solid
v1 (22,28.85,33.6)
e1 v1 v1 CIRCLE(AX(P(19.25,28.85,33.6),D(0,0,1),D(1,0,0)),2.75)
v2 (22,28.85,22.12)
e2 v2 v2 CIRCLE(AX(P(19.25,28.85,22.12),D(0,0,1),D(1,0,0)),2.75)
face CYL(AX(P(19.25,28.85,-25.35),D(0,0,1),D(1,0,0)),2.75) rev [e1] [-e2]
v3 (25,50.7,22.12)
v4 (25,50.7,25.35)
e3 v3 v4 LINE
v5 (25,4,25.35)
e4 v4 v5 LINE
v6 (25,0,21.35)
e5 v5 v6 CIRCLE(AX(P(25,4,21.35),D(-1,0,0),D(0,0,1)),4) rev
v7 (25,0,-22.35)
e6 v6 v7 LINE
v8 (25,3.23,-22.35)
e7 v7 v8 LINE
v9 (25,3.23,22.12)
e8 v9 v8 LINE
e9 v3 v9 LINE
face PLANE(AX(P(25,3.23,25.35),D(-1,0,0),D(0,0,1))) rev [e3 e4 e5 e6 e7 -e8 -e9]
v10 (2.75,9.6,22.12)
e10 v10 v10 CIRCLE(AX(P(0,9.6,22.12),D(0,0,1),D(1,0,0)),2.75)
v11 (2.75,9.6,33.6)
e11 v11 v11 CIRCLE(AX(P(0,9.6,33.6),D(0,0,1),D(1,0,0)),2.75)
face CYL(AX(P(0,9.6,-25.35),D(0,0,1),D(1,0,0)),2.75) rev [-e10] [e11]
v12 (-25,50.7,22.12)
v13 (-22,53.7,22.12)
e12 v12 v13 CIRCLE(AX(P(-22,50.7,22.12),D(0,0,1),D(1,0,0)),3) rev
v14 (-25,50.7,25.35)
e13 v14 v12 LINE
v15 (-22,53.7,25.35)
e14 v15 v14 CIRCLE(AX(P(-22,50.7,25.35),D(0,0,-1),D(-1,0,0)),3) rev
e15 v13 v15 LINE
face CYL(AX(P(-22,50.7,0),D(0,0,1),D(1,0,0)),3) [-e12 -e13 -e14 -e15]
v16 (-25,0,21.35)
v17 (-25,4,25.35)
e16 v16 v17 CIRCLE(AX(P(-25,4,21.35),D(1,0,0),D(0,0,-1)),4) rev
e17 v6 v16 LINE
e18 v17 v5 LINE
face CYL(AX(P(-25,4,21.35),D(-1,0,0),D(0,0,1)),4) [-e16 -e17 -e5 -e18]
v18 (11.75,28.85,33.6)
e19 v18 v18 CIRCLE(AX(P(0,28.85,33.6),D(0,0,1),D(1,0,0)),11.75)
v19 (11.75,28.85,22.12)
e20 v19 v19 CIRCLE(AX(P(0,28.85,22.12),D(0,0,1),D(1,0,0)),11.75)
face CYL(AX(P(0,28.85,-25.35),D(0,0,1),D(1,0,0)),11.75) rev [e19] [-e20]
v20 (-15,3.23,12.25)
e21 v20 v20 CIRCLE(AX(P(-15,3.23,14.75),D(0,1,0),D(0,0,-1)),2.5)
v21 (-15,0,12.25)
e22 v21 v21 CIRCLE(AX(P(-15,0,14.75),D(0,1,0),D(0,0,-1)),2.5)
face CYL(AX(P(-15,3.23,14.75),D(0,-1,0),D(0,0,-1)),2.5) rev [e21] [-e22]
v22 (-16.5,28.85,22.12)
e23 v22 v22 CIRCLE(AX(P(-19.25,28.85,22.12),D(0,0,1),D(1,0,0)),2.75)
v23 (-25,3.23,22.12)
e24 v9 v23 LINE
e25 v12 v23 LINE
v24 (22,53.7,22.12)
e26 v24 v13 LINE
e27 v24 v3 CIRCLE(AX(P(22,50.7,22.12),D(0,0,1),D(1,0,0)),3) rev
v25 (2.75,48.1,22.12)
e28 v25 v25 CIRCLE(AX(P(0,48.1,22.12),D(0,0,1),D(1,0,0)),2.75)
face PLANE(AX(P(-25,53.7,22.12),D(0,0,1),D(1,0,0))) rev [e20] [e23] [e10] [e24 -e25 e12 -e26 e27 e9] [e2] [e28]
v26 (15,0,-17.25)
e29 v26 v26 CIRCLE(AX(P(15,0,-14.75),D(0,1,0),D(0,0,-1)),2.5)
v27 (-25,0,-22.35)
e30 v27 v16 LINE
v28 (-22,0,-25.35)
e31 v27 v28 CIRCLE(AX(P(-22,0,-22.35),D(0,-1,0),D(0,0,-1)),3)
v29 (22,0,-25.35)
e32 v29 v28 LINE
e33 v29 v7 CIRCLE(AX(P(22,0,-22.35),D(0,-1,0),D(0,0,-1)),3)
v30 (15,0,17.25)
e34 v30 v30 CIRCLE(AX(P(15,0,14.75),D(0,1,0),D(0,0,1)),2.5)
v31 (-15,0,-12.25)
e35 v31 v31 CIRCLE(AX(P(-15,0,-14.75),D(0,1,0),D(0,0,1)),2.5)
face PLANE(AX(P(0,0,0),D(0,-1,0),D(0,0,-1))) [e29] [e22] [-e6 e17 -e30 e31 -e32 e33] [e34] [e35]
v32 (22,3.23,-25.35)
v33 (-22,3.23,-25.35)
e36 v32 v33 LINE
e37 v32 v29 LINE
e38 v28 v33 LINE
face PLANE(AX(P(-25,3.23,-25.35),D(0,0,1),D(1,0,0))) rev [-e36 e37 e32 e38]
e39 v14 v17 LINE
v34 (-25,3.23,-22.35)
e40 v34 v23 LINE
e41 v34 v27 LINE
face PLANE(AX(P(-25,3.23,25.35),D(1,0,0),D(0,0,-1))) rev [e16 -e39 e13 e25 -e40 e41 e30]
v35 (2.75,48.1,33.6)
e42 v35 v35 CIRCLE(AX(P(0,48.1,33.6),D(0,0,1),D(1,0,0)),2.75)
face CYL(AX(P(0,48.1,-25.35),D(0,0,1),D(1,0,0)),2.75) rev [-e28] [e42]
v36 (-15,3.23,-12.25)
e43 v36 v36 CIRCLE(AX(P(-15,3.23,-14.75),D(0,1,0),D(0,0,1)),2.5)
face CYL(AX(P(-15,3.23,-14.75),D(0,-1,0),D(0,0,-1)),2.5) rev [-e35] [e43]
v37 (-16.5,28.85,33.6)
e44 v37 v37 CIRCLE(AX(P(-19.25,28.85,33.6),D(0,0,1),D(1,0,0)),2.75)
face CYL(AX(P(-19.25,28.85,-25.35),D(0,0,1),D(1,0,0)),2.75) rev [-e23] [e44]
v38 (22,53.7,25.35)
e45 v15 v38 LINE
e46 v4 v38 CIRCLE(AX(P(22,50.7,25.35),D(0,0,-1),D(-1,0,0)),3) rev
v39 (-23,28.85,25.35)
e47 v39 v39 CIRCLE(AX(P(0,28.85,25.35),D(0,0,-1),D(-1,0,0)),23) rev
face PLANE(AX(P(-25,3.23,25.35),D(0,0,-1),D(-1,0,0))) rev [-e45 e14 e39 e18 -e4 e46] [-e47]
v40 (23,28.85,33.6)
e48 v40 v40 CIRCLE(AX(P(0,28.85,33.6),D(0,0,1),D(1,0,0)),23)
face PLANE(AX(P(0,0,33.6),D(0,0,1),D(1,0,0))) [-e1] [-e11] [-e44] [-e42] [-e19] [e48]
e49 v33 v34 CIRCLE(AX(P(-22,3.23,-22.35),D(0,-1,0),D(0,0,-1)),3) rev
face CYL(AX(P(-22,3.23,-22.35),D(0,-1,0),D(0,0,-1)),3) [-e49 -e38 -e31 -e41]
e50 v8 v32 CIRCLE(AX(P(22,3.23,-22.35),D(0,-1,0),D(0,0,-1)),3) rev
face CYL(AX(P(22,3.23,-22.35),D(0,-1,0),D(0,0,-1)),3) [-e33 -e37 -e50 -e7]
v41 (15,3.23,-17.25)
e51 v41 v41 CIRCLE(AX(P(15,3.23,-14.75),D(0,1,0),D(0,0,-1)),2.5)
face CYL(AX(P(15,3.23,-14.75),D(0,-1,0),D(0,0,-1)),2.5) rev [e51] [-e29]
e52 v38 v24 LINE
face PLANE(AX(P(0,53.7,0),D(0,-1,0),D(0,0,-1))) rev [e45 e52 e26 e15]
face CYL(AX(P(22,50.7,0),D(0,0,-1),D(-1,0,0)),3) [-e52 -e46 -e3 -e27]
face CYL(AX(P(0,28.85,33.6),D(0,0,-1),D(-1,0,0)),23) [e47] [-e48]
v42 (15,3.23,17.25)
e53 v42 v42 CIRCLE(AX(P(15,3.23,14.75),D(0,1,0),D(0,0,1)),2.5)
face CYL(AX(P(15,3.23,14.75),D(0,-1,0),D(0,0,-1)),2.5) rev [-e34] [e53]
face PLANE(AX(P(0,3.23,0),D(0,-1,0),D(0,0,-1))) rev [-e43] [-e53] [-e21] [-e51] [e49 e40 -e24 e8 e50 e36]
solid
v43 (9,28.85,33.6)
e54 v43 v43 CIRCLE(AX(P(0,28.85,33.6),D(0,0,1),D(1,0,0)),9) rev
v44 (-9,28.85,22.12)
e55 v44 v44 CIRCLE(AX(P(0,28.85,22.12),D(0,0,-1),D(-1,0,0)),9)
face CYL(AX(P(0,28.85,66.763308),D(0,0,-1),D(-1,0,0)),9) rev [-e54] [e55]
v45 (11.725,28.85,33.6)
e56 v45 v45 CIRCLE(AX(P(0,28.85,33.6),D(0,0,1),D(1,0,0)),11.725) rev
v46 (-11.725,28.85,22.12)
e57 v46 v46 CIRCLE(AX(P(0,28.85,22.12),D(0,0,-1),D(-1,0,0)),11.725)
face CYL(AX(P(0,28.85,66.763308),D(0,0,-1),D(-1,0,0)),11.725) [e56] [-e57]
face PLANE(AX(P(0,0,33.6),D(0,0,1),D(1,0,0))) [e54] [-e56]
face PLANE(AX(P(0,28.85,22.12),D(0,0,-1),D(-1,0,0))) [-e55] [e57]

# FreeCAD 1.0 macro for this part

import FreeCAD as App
import Part
import Sketcher

V = App.Vector


def edges_at(feature, points):
    """Names of the edges that pass closest to the given points."""
    edges = feature.Shape.Edges
    near = lambda p: min(range(len(edges)), key=lambda i: edges[i].distToShape(Part.Vertex(*p))[0])
    return sorted({f"Edge{near(p) + 1}" for p in points})


def add_polygon(sketch, points):
    """Adds a closed chain of lines whose ends are joined by coincident constraints."""
    first, n = sketch.GeometryCount, len(points)
    for a, b in zip(points, points[1:] + points[:1]):
        sketch.addGeometry(Part.LineSegment(App.Vector(*a, 0), App.Vector(*b, 0)), False)
    for i in range(n):
        sketch.addConstraint(Sketcher.Constraint("Coincident", first + i, 2, first + (i + 1) % n, 1))

doc = App.newDocument("Part")
body = doc.addObject("PartDesign::Body", "Body")

sketch1 = body.newObject("Sketcher::SketchObject", "Sketch")
sketch1.AttachmentSupport = (doc.getObject("XZ_Plane"), [""])
sketch1.MapMode = "FlatFace"
add_polygon(sketch1, [(-25, -25.4), (-25, 25.4), (25, 25.4), (25, -25.4)])
sketch1.addGeometry(Part.Circle(V(-15, 14.8, 0), V(0, 0, 1), 2.5), False)
sketch1.addGeometry(Part.Circle(V(15, 14.8, 0), V(0, 0, 1), 2.5), False)
sketch1.addGeometry(Part.Circle(V(-15, -14.8, 0), V(0, 0, 1), 2.5), False)
sketch1.addGeometry(Part.Circle(V(15, -14.8, 0), V(0, 0, 1), 2.5), False)
sketch1.addConstraint([
    Sketcher.Constraint("Vertical", 0),
    Sketcher.Constraint("Horizontal", 1),
    Sketcher.Constraint("Vertical", 2),
    Sketcher.Constraint("Horizontal", 3),
    Sketcher.Constraint("Equal", 4, 5),
    Sketcher.Constraint("Equal", 5, 6),
    Sketcher.Constraint("Equal", 6, 7),
    Sketcher.Constraint("Symmetric", 5, 3, 6, 3, -1, 1),
    Sketcher.Constraint("Symmetric", 4, 3, 7, 3, -1, 1),
    Sketcher.Constraint("Symmetric", 0, 2, 2, 2, -1, 1),
    Sketcher.Constraint("Symmetric", 4, 3, 5, 3, -2),
    Sketcher.Constraint("Diameter", 4, 5.0),
    Sketcher.Constraint("DistanceX", 1, 1, 1, 2, 50.0),
    Sketcher.Constraint("DistanceY", 0, 1, 0, 2, 50.7),
    Sketcher.Constraint("DistanceX", 4, 3, -1, 1, 15.0),
    Sketcher.Constraint("DistanceY", 6, 3, 4, 3, 29.5),
])
pad1 = body.newObject("PartDesign::Pad", "Pad")
pad1.Profile = sketch1
pad1.Length = 3.23
pad1.Reversed = True

sketch2 = body.newObject("Sketcher::SketchObject", "Sketch001")
sketch2.AttachmentSupport = (doc.getObject("XZ_Plane"), [""])
sketch2.MapMode = "FlatFace"
sketch2.AttachmentOffset = App.Placement(V(0, 0, -3.23), App.Rotation())
add_polygon(sketch2, [(-25, 22.1), (-25, 25.4), (25, 25.4), (25, 22.1)])
sketch2.addConstraint([
    Sketcher.Constraint("Vertical", 0),
    Sketcher.Constraint("Horizontal", 1),
    Sketcher.Constraint("Vertical", 2),
    Sketcher.Constraint("Horizontal", 3),
    Sketcher.Constraint("DistanceX", 1, 1, 1, 2, 50.0),
    Sketcher.Constraint("DistanceX", 0, 2, -1, 1, 25.0),
    Sketcher.Constraint("DistanceY", 0, 1, 0, 2, 3.23),
    Sketcher.Constraint("DistanceY", -1, 1, 0, 2, 25.35),
])
pad2 = body.newObject("PartDesign::Pad", "Pad001")
pad2.Profile = sketch2
pad2.Length = 50.47
pad2.Reversed = True
doc.recompute()

fillet = body.newObject("PartDesign::Fillet", "Fillet")
fillet.Base = (pad2, edges_at(pad2, [(0, 0, 25.35)]))
fillet.Radius = 4
doc.recompute()

fillet2 = body.newObject("PartDesign::Fillet", "Fillet001")
fillet2.Base = (fillet, edges_at(fillet, [
    (-25, 53.7, 23.735),
    (25, 53.7, 23.735),
    (-25, 1.615, -25.35),
    (25, 1.615, -25.35),
]))
fillet2.Radius = 3

sketch3 = body.newObject("Sketcher::SketchObject", "Sketch002")
sketch3.AttachmentSupport = (doc.getObject("XY_Plane"), [""])
sketch3.MapMode = "FlatFace"
sketch3.AttachmentOffset = App.Placement(V(0, 0, 25.35), App.Rotation())
sketch3.addGeometry([
    Part.Circle(V(-19.2, 28.9, 0), V(0, 0, 1), 2.8),
    Part.Circle(V(19.2, 28.9, 0), V(0, 0, 1), 2.8),
    Part.Circle(V(0, 48.1, 0), V(0, 0, 1), 2.8),
    Part.Circle(V(0, 9.6, 0), V(0, 0, 1), 2.8),
    Part.Circle(V(0, 28.9, 0), V(0, 0, 1), 11.8),
], False)
sketch3.addConstraint([
    Sketcher.Constraint("Equal", 0, 1),
    Sketcher.Constraint("Equal", 1, 2),
    Sketcher.Constraint("Equal", 2, 3),
    Sketcher.Constraint("Symmetric", 0, 3, 1, 3, -2),
    Sketcher.Constraint("PointOnObject", 2, 3, -2),
    Sketcher.Constraint("PointOnObject", 3, 3, -2),
    Sketcher.Constraint("PointOnObject", 4, 3, -2),
    Sketcher.Constraint("Horizontal", 1, 3, 4, 3),
    Sketcher.Constraint("Diameter", 0, 5.5),
    Sketcher.Constraint("Diameter", 4, 23.5),
    Sketcher.Constraint("DistanceY", -1, 1, 2, 3, 48.1),
    Sketcher.Constraint("DistanceY", -1, 1, 3, 3, 9.6),
    Sketcher.Constraint("DistanceX", 0, 3, 1, 3, 38.5),
    Sketcher.Constraint("DistanceY", -1, 1, 0, 3, 28.85),
])
pocket1 = body.newObject("PartDesign::Pocket", "Pocket")
pocket1.Profile = sketch3
pocket1.Type = "ThroughAll"
pocket1.Midplane = True

sketch4 = body.newObject("Sketcher::SketchObject", "Sketch003")
sketch4.AttachmentSupport = (doc.getObject("XY_Plane"), [""])
sketch4.MapMode = "FlatFace"
sketch4.AttachmentOffset = App.Placement(V(0, 0, 25.35), App.Rotation())
sketch4.addGeometry([
    Part.Circle(V(0, 28.9, 0), V(0, 0, 1), 23),
    Part.Circle(V(0, 9.6, 0), V(0, 0, 1), 2.8),
    Part.Circle(V(-19.2, 28.9, 0), V(0, 0, 1), 2.8),
    Part.Circle(V(0, 28.9, 0), V(0, 0, 1), 11.8),
    Part.Circle(V(19.2, 28.9, 0), V(0, 0, 1), 2.8),
    Part.Circle(V(0, 48.1, 0), V(0, 0, 1), 2.8),
], False)
sketch4.addConstraint([
    Sketcher.Constraint("Coincident", 3, 3, 0, 3),
    Sketcher.Constraint("Equal", 1, 2),
    Sketcher.Constraint("Equal", 2, 4),
    Sketcher.Constraint("Equal", 4, 5),
    Sketcher.Constraint("Symmetric", 2, 3, 4, 3, -2),
    Sketcher.Constraint("PointOnObject", 0, 3, -2),
    Sketcher.Constraint("PointOnObject", 1, 3, -2),
    Sketcher.Constraint("PointOnObject", 5, 3, -2),
    Sketcher.Constraint("Horizontal", 0, 3, 2, 3),
    Sketcher.Constraint("Diameter", 0, 46.0),
    Sketcher.Constraint("Diameter", 1, 5.5),
    Sketcher.Constraint("Diameter", 3, 23.5),
    Sketcher.Constraint("DistanceY", -1, 1, 1, 3, 9.6),
    Sketcher.Constraint("DistanceY", -1, 1, 5, 3, 48.1),
    Sketcher.Constraint("DistanceX", 2, 3, 4, 3, 38.5),
    Sketcher.Constraint("DistanceY", -1, 1, 0, 3, 28.85),
])
pad3 = body.newObject("PartDesign::Pad", "Pad002")
pad3.Profile = sketch4
pad3.Length = 8.25
body2 = doc.addObject("PartDesign::Body", "Body001")

sketch5 = body2.newObject("Sketcher::SketchObject", "Sketch004")
sketch5.AttachmentSupport = (doc.getObject("XY_Plane001"), [""])
sketch5.MapMode = "FlatFace"
sketch5.AttachmentOffset = App.Placement(V(0, 0, 22.12), App.Rotation())
sketch5.addGeometry([
    Part.Circle(V(0, 29, 0), V(0, 0, 1), 12),
    Part.Circle(V(0, 29, 0), V(0, 0, 1), 9),
], False)
sketch5.addConstraint([
    Sketcher.Constraint("Coincident", 1, 3, 0, 3),
    Sketcher.Constraint("PointOnObject", 0, 3, -2),
    Sketcher.Constraint("Diameter", 1, 18.0),
    Sketcher.Constraint("Diameter", 0, 23.45),
    Sketcher.Constraint("DistanceY", -1, 1, 0, 3, 28.85),
])
pad4 = body2.newObject("PartDesign::Pad", "Pad003")
pad4.Profile = sketch5
pad4.Length = 11.48

doc.recompute()
